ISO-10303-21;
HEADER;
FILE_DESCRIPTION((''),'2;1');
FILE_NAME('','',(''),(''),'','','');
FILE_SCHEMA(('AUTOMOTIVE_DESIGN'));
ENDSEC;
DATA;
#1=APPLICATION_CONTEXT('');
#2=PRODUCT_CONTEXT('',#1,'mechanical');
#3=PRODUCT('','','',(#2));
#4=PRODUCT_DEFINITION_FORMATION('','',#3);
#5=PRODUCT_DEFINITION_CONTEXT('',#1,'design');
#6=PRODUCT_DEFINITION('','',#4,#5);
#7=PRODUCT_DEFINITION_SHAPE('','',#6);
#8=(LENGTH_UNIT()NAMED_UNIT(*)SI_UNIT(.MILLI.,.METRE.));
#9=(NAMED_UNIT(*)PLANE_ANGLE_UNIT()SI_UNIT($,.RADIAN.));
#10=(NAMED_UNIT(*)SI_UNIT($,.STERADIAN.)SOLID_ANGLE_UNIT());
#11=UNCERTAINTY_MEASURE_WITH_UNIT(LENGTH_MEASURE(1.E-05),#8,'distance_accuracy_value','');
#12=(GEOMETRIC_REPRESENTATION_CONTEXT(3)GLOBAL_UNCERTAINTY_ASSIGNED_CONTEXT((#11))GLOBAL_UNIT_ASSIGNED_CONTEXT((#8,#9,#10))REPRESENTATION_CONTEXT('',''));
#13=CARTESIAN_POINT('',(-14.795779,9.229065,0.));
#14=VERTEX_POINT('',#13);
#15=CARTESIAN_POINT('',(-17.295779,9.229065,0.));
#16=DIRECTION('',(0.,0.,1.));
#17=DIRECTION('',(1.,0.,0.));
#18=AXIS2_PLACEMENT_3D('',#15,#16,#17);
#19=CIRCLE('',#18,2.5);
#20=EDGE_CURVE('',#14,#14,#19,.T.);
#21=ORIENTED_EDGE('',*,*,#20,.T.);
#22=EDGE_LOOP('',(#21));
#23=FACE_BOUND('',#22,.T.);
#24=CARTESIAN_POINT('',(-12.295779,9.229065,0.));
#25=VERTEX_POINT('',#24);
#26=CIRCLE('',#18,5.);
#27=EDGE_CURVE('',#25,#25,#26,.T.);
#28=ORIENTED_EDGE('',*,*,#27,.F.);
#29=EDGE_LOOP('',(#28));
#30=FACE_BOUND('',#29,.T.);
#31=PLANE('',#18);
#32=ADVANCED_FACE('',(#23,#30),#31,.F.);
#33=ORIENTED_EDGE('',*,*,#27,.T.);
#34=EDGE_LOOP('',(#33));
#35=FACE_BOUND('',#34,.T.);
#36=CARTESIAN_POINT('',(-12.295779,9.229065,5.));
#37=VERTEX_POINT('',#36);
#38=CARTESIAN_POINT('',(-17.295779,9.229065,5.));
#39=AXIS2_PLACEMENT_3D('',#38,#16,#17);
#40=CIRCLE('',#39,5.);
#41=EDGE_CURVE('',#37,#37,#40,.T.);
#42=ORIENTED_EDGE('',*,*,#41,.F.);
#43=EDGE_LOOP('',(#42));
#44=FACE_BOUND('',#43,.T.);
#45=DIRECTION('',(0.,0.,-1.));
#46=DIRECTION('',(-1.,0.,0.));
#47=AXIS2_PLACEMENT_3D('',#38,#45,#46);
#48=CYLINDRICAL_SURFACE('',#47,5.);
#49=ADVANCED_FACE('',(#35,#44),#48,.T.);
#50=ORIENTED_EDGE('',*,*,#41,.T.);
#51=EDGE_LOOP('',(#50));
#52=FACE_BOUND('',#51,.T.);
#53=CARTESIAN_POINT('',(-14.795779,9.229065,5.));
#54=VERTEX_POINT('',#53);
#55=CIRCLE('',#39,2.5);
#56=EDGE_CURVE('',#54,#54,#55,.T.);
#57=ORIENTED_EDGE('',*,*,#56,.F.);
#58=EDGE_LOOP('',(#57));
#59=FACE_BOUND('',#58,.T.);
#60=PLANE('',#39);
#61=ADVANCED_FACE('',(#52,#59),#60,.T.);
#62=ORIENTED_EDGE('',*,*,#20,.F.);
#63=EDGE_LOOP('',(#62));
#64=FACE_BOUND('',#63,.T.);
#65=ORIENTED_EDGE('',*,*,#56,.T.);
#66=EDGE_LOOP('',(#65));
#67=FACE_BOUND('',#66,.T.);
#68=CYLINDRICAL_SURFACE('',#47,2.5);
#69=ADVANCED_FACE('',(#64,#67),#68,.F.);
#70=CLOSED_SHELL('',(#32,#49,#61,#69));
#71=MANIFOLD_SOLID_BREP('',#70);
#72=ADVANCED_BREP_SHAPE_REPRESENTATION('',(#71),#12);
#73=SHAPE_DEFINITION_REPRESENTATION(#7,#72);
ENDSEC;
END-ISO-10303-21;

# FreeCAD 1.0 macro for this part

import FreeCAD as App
import Part
import Sketcher

V = App.Vector
Q = App.Units.Quantity

doc = App.newDocument("Part")
body = doc.addObject("PartDesign::Body", "Body")

sketch1 = body.newObject("Sketcher::SketchObject", "Sketch")
sketch1.AttachmentSupport = (doc.getObject("XY_Plane"), [""])
sketch1.MapMode = "FlatFace"
sketch1.addGeometry(Part.Circle(V(-17.3, 9.2, 0), V(0, 0, 1), 5), False)
sketch1.addGeometry(Part.Circle(V(-17.3, 9.2, 0), V(0, 0, 1), 2.5), False)
sketch1.addConstraint(Sketcher.Constraint("Coincident", 1, 3, 0, 3))
sketch1.addConstraint(Sketcher.Constraint("Diameter", 0, Q("10 mm")))
sketch1.addConstraint(Sketcher.Constraint("Diameter", 1, Q("5 mm")))
sketch1.addConstraint(Sketcher.Constraint("DistanceX", 0, 3, -1, 1, Q("17.295779 mm")))
sketch1.addConstraint(Sketcher.Constraint("DistanceY", -1, 1, 0, 3, Q("9.229065 mm")))
pad1 = body.newObject("PartDesign::Pad", "Pad")
pad1.Profile = sketch1
pad1.Length = 5

doc.recompute()
